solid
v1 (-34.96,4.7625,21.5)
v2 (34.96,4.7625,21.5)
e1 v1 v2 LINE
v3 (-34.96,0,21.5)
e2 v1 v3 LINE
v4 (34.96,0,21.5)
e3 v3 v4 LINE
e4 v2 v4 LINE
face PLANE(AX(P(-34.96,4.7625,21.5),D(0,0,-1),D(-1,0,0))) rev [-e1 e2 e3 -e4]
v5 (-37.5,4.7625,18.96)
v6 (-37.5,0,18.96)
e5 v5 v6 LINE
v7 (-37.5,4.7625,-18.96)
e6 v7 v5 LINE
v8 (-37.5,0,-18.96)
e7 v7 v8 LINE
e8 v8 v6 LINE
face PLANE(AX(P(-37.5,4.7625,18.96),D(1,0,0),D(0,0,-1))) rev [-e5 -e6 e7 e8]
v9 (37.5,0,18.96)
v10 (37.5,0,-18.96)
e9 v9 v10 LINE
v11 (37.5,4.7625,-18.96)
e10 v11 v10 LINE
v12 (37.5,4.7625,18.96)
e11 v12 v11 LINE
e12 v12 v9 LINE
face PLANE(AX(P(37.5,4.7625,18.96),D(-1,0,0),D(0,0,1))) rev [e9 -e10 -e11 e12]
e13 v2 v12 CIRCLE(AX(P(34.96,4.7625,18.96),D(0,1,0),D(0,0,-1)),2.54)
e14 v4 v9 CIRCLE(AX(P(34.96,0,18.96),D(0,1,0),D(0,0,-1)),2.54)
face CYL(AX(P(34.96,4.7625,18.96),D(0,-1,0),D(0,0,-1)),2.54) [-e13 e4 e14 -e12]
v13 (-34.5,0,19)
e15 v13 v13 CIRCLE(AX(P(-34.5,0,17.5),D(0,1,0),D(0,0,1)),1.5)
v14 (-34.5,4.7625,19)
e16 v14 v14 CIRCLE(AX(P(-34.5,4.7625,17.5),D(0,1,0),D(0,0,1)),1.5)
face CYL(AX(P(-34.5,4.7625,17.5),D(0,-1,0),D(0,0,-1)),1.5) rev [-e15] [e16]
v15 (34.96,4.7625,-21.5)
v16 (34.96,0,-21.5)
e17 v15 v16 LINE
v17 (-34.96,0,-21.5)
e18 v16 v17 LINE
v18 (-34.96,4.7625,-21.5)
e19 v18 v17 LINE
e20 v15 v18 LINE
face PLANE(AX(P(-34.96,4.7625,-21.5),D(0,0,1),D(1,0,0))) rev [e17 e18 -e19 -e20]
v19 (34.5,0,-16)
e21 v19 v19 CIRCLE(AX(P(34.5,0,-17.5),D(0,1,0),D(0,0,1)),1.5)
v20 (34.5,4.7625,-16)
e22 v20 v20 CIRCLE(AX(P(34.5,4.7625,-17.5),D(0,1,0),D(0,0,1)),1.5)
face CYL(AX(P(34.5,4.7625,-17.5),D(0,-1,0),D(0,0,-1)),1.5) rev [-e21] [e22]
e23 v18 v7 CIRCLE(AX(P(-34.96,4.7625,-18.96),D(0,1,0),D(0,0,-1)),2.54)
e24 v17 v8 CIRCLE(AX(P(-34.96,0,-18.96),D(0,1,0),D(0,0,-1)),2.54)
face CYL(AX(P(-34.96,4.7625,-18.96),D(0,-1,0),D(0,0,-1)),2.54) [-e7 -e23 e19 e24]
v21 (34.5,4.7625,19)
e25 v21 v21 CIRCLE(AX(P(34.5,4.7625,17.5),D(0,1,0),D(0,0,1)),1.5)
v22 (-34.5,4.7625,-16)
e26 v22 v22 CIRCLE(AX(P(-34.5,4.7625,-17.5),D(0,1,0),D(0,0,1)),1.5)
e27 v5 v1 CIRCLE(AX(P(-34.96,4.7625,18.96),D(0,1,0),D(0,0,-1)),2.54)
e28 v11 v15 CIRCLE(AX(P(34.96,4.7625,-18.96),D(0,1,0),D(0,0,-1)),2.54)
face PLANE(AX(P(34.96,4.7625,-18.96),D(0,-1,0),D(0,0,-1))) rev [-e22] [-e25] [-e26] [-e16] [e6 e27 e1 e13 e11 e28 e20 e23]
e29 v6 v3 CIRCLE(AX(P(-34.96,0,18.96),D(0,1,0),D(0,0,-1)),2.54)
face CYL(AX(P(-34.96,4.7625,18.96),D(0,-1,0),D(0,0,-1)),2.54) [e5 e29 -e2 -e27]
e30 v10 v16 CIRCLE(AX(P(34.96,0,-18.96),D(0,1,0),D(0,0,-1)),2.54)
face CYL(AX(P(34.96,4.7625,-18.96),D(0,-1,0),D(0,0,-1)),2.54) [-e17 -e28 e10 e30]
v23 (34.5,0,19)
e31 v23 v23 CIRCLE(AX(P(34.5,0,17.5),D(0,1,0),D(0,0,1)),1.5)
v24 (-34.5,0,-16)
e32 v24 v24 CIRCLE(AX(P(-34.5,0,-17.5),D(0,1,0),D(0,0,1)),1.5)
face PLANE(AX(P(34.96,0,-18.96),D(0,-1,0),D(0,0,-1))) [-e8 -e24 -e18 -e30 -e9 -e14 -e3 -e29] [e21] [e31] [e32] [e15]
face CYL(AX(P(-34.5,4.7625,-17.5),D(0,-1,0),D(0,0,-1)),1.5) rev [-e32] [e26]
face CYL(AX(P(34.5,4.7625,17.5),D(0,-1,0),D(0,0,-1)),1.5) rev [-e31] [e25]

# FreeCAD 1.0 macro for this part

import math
import FreeCAD as App
import Part
import Sketcher

V = App.Vector
Q = App.Units.Quantity

doc = App.newDocument("Part")
params = doc.addObject("Spreadsheet::Sheet", "Params")
for row, (alias, value) in enumerate([
    ("sketch1_radius", "0.1 in"),
    ("pad1_length", "0.1875 in"),
], start=1):
    params.set(f"A{row}", alias)
    params.set(f"B{row}", "=" + value)
    params.setAlias(f"B{row}", alias)

body = doc.addObject("PartDesign::Body", "Body")

sketch1 = body.newObject("Sketcher::SketchObject", "Sketch")
sketch1.AttachmentSupport = (doc.getObject("XZ_Plane"), [""])
sketch1.MapMode = "FlatFace"
sketch1.addGeometry([
    Part.LineSegment(V(-35, 21.5, 0), V(35, 21.5, 0)),
    Part.ArcOfCircle(Part.Circle(V(35, 19, 0), V(0, 0, 1), 2.5), math.radians(0), math.radians(90)),
    Part.LineSegment(V(37.5, 19, 0), V(37.5, -19, 0)),
    Part.ArcOfCircle(Part.Circle(V(35, -19, 0), V(0, 0, 1), 2.5), math.radians(-90), math.radians(0)),
    Part.LineSegment(V(35, -21.5, 0), V(-35, -21.5, 0)),
    Part.ArcOfCircle(Part.Circle(V(-35, -19, 0), V(0, 0, 1), 2.5), math.radians(-180), math.radians(-90)),
    Part.LineSegment(V(-37.5, -19, 0), V(-37.5, 19, 0)),
    Part.ArcOfCircle(Part.Circle(V(-35, 19, 0), V(0, 0, 1), 2.5), math.radians(90), math.radians(180)),
    Part.Circle(V(-34.5, 17.5, 0), V(0, 0, 1), 1.5),
    Part.Circle(V(34.5, 17.5, 0), V(0, 0, 1), 1.5),
    Part.Circle(V(-34.5, -17.5, 0), V(0, 0, 1), 1.5),
    Part.Circle(V(34.5, -17.5, 0), V(0, 0, 1), 1.5),
], False)
sketch1.addConstraint([
    Sketcher.Constraint("Tangent", 0, 2, 1, 2),
    Sketcher.Constraint("Tangent", 1, 1, 2, 1),
    Sketcher.Constraint("Tangent", 2, 2, 3, 2),
    Sketcher.Constraint("Tangent", 3, 1, 4, 1),
    Sketcher.Constraint("Tangent", 4, 2, 5, 2),
    Sketcher.Constraint("Tangent", 5, 1, 6, 1),
    Sketcher.Constraint("Tangent", 6, 2, 7, 2),
    Sketcher.Constraint("Tangent", 7, 1, 0, 1),
    Sketcher.Constraint("Horizontal", 0),
    Sketcher.Constraint("Vertical", 2),
    Sketcher.Constraint("Horizontal", 4),
    Sketcher.Constraint("Vertical", 6),
    Sketcher.Constraint("Equal", 1, 3),
    Sketcher.Constraint("Equal", 3, 5),
    Sketcher.Constraint("Equal", 5, 7),
    Sketcher.Constraint("Equal", 8, 9),
    Sketcher.Constraint("Equal", 9, 10),
    Sketcher.Constraint("Equal", 10, 11),
    Sketcher.Constraint("Symmetric", 1, 3, 5, 3, -1, 1),
    Sketcher.Constraint("Symmetric", 9, 3, 10, 3, -1, 1),
    Sketcher.Constraint("Symmetric", 8, 3, 11, 3, -1, 1),
    Sketcher.Constraint("Symmetric", 8, 3, 9, 3, -2),
    Sketcher.Constraint("Radius", 1, Q("0.1 in")),
    Sketcher.Constraint("Diameter", 8, 3.0),
    Sketcher.Constraint("DistanceX", 0, 1, 0, 2, 69.92),
    Sketcher.Constraint("DistanceY", 2, 2, 2, 1, 37.92),
    Sketcher.Constraint("DistanceX", 8, 3, -1, 1, 34.5),
    Sketcher.Constraint("DistanceY", -1, 1, 8, 3, 17.5),
])
sketch1.setExpression("Constraints[22]", "Params.sketch1_radius")
pad1 = body.newObject("PartDesign::Pad", "Pad")
pad1.Profile = sketch1
pad1.setExpression("Length", "Params.pad1_length")
pad1.Reversed = True

doc.recompute()
